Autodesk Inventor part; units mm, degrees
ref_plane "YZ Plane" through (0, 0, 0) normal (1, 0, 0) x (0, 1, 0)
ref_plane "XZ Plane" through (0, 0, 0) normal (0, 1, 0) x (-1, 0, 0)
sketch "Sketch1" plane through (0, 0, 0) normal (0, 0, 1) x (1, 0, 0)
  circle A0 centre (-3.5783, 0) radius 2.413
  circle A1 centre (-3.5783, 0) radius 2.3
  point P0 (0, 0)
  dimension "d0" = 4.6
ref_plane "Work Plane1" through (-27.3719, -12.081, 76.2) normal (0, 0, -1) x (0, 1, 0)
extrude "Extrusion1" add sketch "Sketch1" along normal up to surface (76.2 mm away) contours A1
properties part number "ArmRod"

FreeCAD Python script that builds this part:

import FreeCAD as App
import Part
import Sketcher
Q = App.Units.Quantity

doc = App.newDocument("Part")
body = doc.addObject("PartDesign::Body", "Body")

# Sketch on XY plane
sketch1 = body.newObject("Sketcher::SketchObject", "Sketch")
sketch1.AttachmentSupport = (doc.getObject("XY_Plane"), [""])
sketch1.MapMode = "FlatFace"
sketch1.addGeometry(Part.Circle(App.Vector(-3.6, 0, 0), App.Vector(0, 0, 1), 2.3), False)
sketch1.addConstraint(Sketcher.Constraint("PointOnObject", 0, 3, -1))
sketch1.addConstraint(Sketcher.Constraint("Diameter", 0, Q("0.1811 in")))
sketch1.addConstraint(Sketcher.Constraint("DistanceX", 0, 3, -1, 1, 3.5783))
pad1 = body.newObject("PartDesign::Pad", "Pad")
pad1.Profile = sketch1
pad1.Length = Q("3 in")

doc.recompute()
